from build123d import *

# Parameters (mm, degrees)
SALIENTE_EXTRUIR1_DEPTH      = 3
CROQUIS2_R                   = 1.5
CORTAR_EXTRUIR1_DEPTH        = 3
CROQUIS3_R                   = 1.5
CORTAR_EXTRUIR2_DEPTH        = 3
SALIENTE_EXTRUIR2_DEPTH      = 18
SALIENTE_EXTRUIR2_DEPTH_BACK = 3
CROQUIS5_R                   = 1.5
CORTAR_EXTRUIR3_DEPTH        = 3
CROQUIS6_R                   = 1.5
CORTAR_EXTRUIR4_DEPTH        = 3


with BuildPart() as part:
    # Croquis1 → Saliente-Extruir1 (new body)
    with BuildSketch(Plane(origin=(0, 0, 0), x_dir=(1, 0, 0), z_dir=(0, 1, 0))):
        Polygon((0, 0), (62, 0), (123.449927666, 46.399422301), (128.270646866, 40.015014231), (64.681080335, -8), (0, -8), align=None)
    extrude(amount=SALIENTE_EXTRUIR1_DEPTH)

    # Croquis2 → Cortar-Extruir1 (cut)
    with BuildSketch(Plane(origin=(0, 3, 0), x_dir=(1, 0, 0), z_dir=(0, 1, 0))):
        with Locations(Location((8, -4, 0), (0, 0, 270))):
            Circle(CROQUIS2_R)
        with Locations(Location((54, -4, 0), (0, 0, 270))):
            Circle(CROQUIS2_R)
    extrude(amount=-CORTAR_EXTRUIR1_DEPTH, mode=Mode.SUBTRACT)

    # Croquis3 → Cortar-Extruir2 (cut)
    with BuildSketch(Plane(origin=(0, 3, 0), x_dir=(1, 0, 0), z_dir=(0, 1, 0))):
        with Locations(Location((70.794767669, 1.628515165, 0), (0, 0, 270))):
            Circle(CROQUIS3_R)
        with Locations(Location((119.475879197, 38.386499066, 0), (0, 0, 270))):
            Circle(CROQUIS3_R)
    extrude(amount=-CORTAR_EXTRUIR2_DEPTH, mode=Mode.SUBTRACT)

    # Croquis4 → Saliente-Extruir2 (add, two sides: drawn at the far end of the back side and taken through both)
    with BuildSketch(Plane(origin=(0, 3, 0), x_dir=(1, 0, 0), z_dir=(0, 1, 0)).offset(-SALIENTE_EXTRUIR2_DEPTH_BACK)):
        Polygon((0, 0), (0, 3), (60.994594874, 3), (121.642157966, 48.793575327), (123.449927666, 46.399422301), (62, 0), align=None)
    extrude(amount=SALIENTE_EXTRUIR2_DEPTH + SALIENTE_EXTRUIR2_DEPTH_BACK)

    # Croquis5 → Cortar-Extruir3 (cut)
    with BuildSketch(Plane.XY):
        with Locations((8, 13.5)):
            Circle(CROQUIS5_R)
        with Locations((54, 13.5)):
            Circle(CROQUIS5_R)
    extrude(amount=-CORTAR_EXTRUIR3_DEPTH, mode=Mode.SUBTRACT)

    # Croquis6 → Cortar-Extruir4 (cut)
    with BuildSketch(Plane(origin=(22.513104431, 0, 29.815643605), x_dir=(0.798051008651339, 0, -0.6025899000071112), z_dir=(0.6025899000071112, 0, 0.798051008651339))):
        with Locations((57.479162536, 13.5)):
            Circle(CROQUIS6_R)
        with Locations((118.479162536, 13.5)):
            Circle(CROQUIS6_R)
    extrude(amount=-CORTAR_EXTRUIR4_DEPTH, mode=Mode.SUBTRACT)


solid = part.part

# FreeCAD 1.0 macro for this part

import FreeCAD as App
import Part
import Sketcher

V = App.Vector
Q = App.Units.Quantity

doc = App.newDocument("Part")
body = doc.addObject("PartDesign::Body", "Body")

# Sketch on XZ plane
sketch1 = body.newObject("Sketcher::SketchObject", "Sketch")
sketch1.AttachmentSupport = (doc.getObject("XZ_Plane"), [""])
sketch1.MapMode = "FlatFace"
sketch1.addGeometry(Part.LineSegment(V(62, 0, 0), V(0, 0, 0)), False)
sketch1.addGeometry(Part.LineSegment(V(0, 0, 0), V(0, 8, 0)), False)
sketch1.addGeometry(Part.LineSegment(V(0, 8, 0), V(65, 8, 0)), False)
sketch1.addGeometry(Part.LineSegment(V(65, 8, 0), V(128, -40, 0)), False)
sketch1.addGeometry(Part.LineSegment(V(128, -40, 0), V(123, -46, 0)), False)
sketch1.addGeometry(Part.LineSegment(V(123, -46, 0), V(62, 0, 0)), False)
sketch1.addConstraint(Sketcher.Constraint("Coincident", 0, 2, 1, 1))
sketch1.addConstraint(Sketcher.Constraint("Coincident", 1, 2, 2, 1))
sketch1.addConstraint(Sketcher.Constraint("Coincident", 2, 2, 3, 1))
sketch1.addConstraint(Sketcher.Constraint("Coincident", 3, 2, 4, 1))
sketch1.addConstraint(Sketcher.Constraint("Coincident", 4, 2, 5, 1))
sketch1.addConstraint(Sketcher.Constraint("Coincident", 5, 2, 0, 1))
sketch1.addConstraint(Sketcher.Constraint("Horizontal", 0))
sketch1.addConstraint(Sketcher.Constraint("Vertical", 1))
sketch1.addConstraint(Sketcher.Constraint("Horizontal", 2))
sketch1.addConstraint(Sketcher.Constraint("Coincident", 0, 2, -1, 1))
sketch1.addConstraint(Sketcher.Constraint("Perpendicular", 3, 4))
sketch1.addConstraint(Sketcher.Constraint("Perpendicular", 4, 5))
sketch1.addConstraint(Sketcher.Constraint("DistanceX", 0, 2, 0, 1, Q("62 mm")))
sketch1.addConstraint(Sketcher.Constraint("DistanceY", 1, 1, 1, 2, Q("8 mm")))
sketch1.addConstraint(Sketcher.Constraint("Distance", 4, Q("8 mm")))
sketch1.addConstraint(Sketcher.Constraint("Distance", 5, Q("77 mm")))
sketch1.addConstraint(Sketcher.Constraint("DistanceX", 2, 1, 2, 2, Q("64.68108 mm")))
pad1 = body.newObject("PartDesign::Pad", "Pad")
pad1.Profile = sketch1
pad1.Length = 3
pad1.Reversed = True

# Sketch on XZ plane
sketch2 = body.newObject("Sketcher::SketchObject", "Sketch001")
sketch2.AttachmentSupport = (doc.getObject("XZ_Plane"), [""])
sketch2.MapMode = "FlatFace"
sketch2.AttachmentOffset = App.Placement(V(0, 0, -3), App.Rotation())
sketch2.addGeometry(Part.Circle(V(8, 4, 0), V(0, 0, 1), 1.5), False)
sketch2.addGeometry(Part.Circle(V(54, 4, 0), V(0, 0, 1), 1.5), False)
sketch2.addConstraint(Sketcher.Constraint("Equal", 0, 1))
sketch2.addConstraint(Sketcher.Constraint("Horizontal", 0, 3, 1, 3))
sketch2.addConstraint(Sketcher.Constraint("Diameter", 0, Q("3 mm")))
sketch2.addConstraint(Sketcher.Constraint("DistanceX", -1, 1, 0, 3, Q("8 mm")))
sketch2.addConstraint(Sketcher.Constraint("DistanceY", -1, 1, 0, 3, Q("4 mm")))
sketch2.addConstraint(Sketcher.Constraint("DistanceX", -1, 1, 1, 3, Q("54 mm")))
pocket1 = body.newObject("PartDesign::Pocket", "Pocket")
pocket1.Profile = sketch2
pocket1.Length = 3
pocket1.Reversed = True

# Sketch on XZ plane
sketch3 = body.newObject("Sketcher::SketchObject", "Sketch002")
sketch3.AttachmentSupport = (doc.getObject("XZ_Plane"), [""])
sketch3.MapMode = "FlatFace"
sketch3.AttachmentOffset = App.Placement(V(0, 0, -3), App.Rotation())
sketch3.addGeometry(Part.Circle(V(70.8, -1.6, 0), V(0, 0, 1), 1.5), False)
sketch3.addGeometry(Part.Circle(V(119.5, -38.4, 0), V(0, 0, 1), 1.5), False)
sketch3.addConstraint(Sketcher.Constraint("Equal", 0, 1))
sketch3.addConstraint(Sketcher.Constraint("Diameter", 0, Q("3 mm")))
sketch3.addConstraint(Sketcher.Constraint("DistanceY", 1, 3, -1, 1, Q("38.386499 mm")))
sketch3.addConstraint(Sketcher.Constraint("DistanceX", -1, 1, 1, 3, Q("119.475879 mm")))
sketch3.addConstraint(Sketcher.Constraint("DistanceX", 0, 3, 1, 3, Q("48.681112 mm")))
sketch3.addConstraint(Sketcher.Constraint("DistanceY", 0, 3, -1, 1, Q("1.628515 mm")))
pocket2 = body.newObject("PartDesign::Pocket", "Pocket001")
pocket2.Profile = sketch3
pocket2.Length = 3
pocket2.Reversed = True

# Sketch on XZ plane
sketch4 = body.newObject("Sketcher::SketchObject", "Sketch003")
sketch4.AttachmentSupport = (doc.getObject("XZ_Plane"), [""])
sketch4.MapMode = "FlatFace"
sketch4.AttachmentOffset = App.Placement(V(0, 0, -3), App.Rotation())
sketch4.addGeometry(Part.LineSegment(V(0, -3, 0), V(0, 0, 0)), False)
sketch4.addGeometry(Part.LineSegment(V(0, 0, 0), V(62, 0, 0)), False)
sketch4.addGeometry(Part.LineSegment(V(62, 0, 0), V(123.4, -46.4, 0)), False)
sketch4.addGeometry(Part.LineSegment(V(123.4, -46.4, 0), V(121.6, -48.8, 0)), False)
sketch4.addGeometry(Part.LineSegment(V(121.6, -48.8, 0), V(61, -3, 0)), False)
sketch4.addGeometry(Part.LineSegment(V(61, -3, 0), V(0, -3, 0)), False)
sketch4.addConstraint(Sketcher.Constraint("Coincident", 0, 2, 1, 1))
sketch4.addConstraint(Sketcher.Constraint("Coincident", 1, 2, 2, 1))
sketch4.addConstraint(Sketcher.Constraint("Coincident", 2, 2, 3, 1))
sketch4.addConstraint(Sketcher.Constraint("Coincident", 3, 2, 4, 1))
sketch4.addConstraint(Sketcher.Constraint("Coincident", 4, 2, 5, 1))
sketch4.addConstraint(Sketcher.Constraint("Coincident", 5, 2, 0, 1))
sketch4.addConstraint(Sketcher.Constraint("Vertical", 0))
sketch4.addConstraint(Sketcher.Constraint("Horizontal", 1))
sketch4.addConstraint(Sketcher.Constraint("Horizontal", 5))
sketch4.addConstraint(Sketcher.Constraint("Coincident", 0, 2, -1, 1))
sketch4.addConstraint(Sketcher.Constraint("Perpendicular", 2, 3))
sketch4.addConstraint(Sketcher.Constraint("Perpendicular", 3, 4))
sketch4.addConstraint(Sketcher.Constraint("DistanceX", 1, 1, 1, 2, Q("62 mm")))
sketch4.addConstraint(Sketcher.Constraint("DistanceY", 0, 1, 0, 2, Q("3 mm")))
sketch4.addConstraint(Sketcher.Constraint("Distance", 2, Q("77 mm")))
sketch4.addConstraint(Sketcher.Constraint("Distance", 3, Q("3 mm")))
sketch4.addConstraint(Sketcher.Constraint("DistanceX", 5, 2, 5, 1, Q("60.994595 mm")))
pad2 = body.newObject("PartDesign::Pad", "Pad001")
pad2.Profile = sketch4
pad2.Type = "TwoLengths"
pad2.Length = 18
pad2.Length2 = 3
pad2.Reversed = True

# Sketch on XY plane
sketch5 = body.newObject("Sketcher::SketchObject", "Sketch004")
sketch5.AttachmentSupport = (doc.getObject("XY_Plane"), [""])
sketch5.MapMode = "FlatFace"
sketch5.addGeometry(Part.Circle(V(8, 13.5, 0), V(0, 0, 1), 1.5), False)
sketch5.addGeometry(Part.Circle(V(54, 13.5, 0), V(0, 0, 1), 1.5), False)
sketch5.addConstraint(Sketcher.Constraint("Equal", 0, 1))
sketch5.addConstraint(Sketcher.Constraint("Horizontal", 0, 3, 1, 3))
sketch5.addConstraint(Sketcher.Constraint("Diameter", 0, Q("3 mm")))
sketch5.addConstraint(Sketcher.Constraint("DistanceX", -1, 1, 0, 3, Q("8 mm")))
sketch5.addConstraint(Sketcher.Constraint("DistanceX", -1, 1, 1, 3, Q("54 mm")))
sketch5.addConstraint(Sketcher.Constraint("DistanceY", -1, 1, 0, 3, Q("13.5 mm")))
pocket3 = body.newObject("PartDesign::Pocket", "Pocket002")
pocket3.Profile = sketch5
pocket3.Length = 3

# Sketch on an angled plane
sketch6 = body.newObject("Sketcher::SketchObject", "Sketch005")
sketch6.Placement = App.Placement(V(22.513104, 0, 29.815644), App.Rotation(V(0.798051009, 0, -0.6025899), V(0, 1.000000001, 0), V(0.6025899, 0, 0.798051009), "ZXY"))
sketch6.addGeometry(Part.Circle(V(57.5, 13.5, 0), V(0, 0, 1), 1.5), False)
sketch6.addGeometry(Part.Circle(V(118.5, 13.5, 0), V(0, 0, 1), 1.5), False)
sketch6.addConstraint(Sketcher.Constraint("Equal", 0, 1))
sketch6.addConstraint(Sketcher.Constraint("Horizontal", 0, 3, 1, 3))
sketch6.addConstraint(Sketcher.Constraint("Diameter", 0, Q("3 mm")))
sketch6.addConstraint(Sketcher.Constraint("DistanceX", 0, 3, 1, 3, Q("61 mm")))
sketch6.addConstraint(Sketcher.Constraint("DistanceY", -1, 1, 0, 3, Q("13.5 mm")))
sketch6.addConstraint(Sketcher.Constraint("DistanceX", -1, 1, 0, 3, Q("57.479163 mm")))
pocket4 = body.newObject("PartDesign::Pocket", "Pocket003")
pocket4.Profile = sketch6
pocket4.Length = 3

doc.recompute()
